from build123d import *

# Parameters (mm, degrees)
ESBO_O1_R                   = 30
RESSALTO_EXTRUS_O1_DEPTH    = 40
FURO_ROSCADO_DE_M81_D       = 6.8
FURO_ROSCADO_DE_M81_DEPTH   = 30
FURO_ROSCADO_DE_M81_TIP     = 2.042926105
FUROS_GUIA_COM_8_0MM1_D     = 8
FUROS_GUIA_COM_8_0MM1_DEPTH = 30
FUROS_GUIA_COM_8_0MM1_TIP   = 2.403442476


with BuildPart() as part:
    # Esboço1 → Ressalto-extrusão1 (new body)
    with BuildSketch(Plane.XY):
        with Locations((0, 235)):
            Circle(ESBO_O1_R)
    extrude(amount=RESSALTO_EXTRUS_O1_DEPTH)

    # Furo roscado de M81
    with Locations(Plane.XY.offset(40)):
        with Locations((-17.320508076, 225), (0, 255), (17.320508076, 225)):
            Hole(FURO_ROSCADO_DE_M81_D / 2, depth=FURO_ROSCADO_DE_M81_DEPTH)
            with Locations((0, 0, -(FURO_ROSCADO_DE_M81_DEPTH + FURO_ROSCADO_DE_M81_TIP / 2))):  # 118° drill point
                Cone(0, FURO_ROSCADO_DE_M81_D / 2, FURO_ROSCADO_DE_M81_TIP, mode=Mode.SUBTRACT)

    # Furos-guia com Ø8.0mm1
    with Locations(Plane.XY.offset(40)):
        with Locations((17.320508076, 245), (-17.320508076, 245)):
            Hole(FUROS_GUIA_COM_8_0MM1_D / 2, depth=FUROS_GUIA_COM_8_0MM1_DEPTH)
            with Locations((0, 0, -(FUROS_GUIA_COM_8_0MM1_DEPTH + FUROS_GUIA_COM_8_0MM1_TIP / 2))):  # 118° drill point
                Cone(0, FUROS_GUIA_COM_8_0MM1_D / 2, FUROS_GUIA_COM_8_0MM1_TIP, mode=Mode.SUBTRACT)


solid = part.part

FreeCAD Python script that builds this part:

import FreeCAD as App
import Part
import Sketcher
from FreeCAD import Vector
Q = App.Units.Quantity

doc = App.newDocument("Part")
params = doc.addObject("Spreadsheet::Sheet", "Params")
for row, (alias, value) in enumerate([
    ("sketch1_diameter", "60 mm"),
    ("pad1_length", "40 mm"),
    ("sketch2_diameter", "6.8 mm"),
    ("hole_diameter", "6.8 mm"),
    ("hole_depth", "30 mm"),
    ("sketch3_diameter", "8 mm"),
    ("hole2_diameter", "8 mm"),
    ("hole2_depth", "30 mm"),
], start=1):
    params.set(f"A{row}", alias)
    params.set(f"B{row}", "=" + value)
    params.setAlias(f"B{row}", alias)

body = doc.addObject("PartDesign::Body", "Body")

# Sketch on XY plane
sketch1 = body.newObject("Sketcher::SketchObject", "Sketch")
sketch1.AttachmentSupport = (doc.getObject("XY_Plane"), [""])
sketch1.MapMode = "FlatFace"
sketch1.addGeometry(Part.Circle(Vector(0, 235, 0), Vector(0, 0, 1), 30), False)
sketch1.addConstraint([
    Sketcher.Constraint("PointOnObject", 0, 3, -2),
    Sketcher.Constraint("Diameter", 0, Q("60 mm")),
    Sketcher.Constraint("DistanceY", -1, 1, 0, 3, Q("235 mm")),
])
sketch1.setExpression("Constraints[1]", "Params.sketch1_diameter")
pad1 = body.newObject("PartDesign::Pad", "Pad")
pad1.Profile = sketch1
pad1.setExpression("Length", "Params.pad1_length")

# Sketch on XY plane
sketch2 = body.newObject("Sketcher::SketchObject", "Sketch001")
sketch2.AttachmentSupport = (doc.getObject("XY_Plane"), [""])
sketch2.MapMode = "FlatFace"
sketch2.AttachmentOffset = App.Placement(Vector(0, 0, 40), App.Rotation())
sketch2.addGeometry([
    Part.Circle(Vector(-17.3, 225, 0), Vector(0, 0, 1), 3.4),
    Part.Circle(Vector(0, 255, 0), Vector(0, 0, 1), 3.4),
    Part.Circle(Vector(17.3, 225, 0), Vector(0, 0, 1), 3.4),
], False)
sketch2.addConstraint([
    Sketcher.Constraint("Equal", 0, 1),
    Sketcher.Constraint("Equal", 1, 2),
    Sketcher.Constraint("Symmetric", 0, 3, 2, 3, -2),
    Sketcher.Constraint("PointOnObject", 1, 3, -2),
    Sketcher.Constraint("Diameter", 0, Q("6.8 mm")),
    Sketcher.Constraint("DistanceY", -1, 1, 0, 3, Q("225 mm")),
    Sketcher.Constraint("DistanceY", -1, 1, 1, 3, Q("255 mm")),
    Sketcher.Constraint("DistanceX", 0, 3, -1, 1, Q("17.320508 mm")),
])
sketch2.setExpression("Constraints[4]", "Params.sketch2_diameter")
doc.recompute()
hole = body.newObject("PartDesign::Hole", "Hole")
hole.Profile = sketch2
hole.ThreadType = "None"
hole.setExpression("Diameter", "Params.hole_diameter")
hole.DepthType = "Dimension"
hole.setExpression("Depth", "Params.hole_depth")
hole.DrillPoint = "Angled"
hole.DrillPointAngle = 118

# Sketch on XY plane
sketch3 = body.newObject("Sketcher::SketchObject", "Sketch002")
sketch3.AttachmentSupport = (doc.getObject("XY_Plane"), [""])
sketch3.MapMode = "FlatFace"
sketch3.AttachmentOffset = App.Placement(Vector(0, 0, 40), App.Rotation())
sketch3.addGeometry([
    Part.Circle(Vector(17.3, 245, 0), Vector(0, 0, 1), 4),
    Part.Circle(Vector(-17.3, 245, 0), Vector(0, 0, 1), 4),
], False)
sketch3.addConstraint([
    Sketcher.Constraint("Equal", 0, 1),
    Sketcher.Constraint("Symmetric", 0, 3, 1, 3, -2),
    Sketcher.Constraint("Diameter", 0, Q("8 mm")),
    Sketcher.Constraint("DistanceY", -1, 1, 0, 3, Q("245 mm")),
    Sketcher.Constraint("DistanceX", -1, 1, 0, 3, Q("17.320508 mm")),
])
sketch3.setExpression("Constraints[2]", "Params.sketch3_diameter")
doc.recompute()
hole2 = body.newObject("PartDesign::Hole", "Hole001")
hole2.Profile = sketch3
hole2.ThreadType = "None"
hole2.setExpression("Diameter", "Params.hole2_diameter")
hole2.DepthType = "Dimension"
hole2.setExpression("Depth", "Params.hole2_depth")
hole2.DrillPoint = "Angled"
hole2.DrillPointAngle = 118

doc.recompute()
